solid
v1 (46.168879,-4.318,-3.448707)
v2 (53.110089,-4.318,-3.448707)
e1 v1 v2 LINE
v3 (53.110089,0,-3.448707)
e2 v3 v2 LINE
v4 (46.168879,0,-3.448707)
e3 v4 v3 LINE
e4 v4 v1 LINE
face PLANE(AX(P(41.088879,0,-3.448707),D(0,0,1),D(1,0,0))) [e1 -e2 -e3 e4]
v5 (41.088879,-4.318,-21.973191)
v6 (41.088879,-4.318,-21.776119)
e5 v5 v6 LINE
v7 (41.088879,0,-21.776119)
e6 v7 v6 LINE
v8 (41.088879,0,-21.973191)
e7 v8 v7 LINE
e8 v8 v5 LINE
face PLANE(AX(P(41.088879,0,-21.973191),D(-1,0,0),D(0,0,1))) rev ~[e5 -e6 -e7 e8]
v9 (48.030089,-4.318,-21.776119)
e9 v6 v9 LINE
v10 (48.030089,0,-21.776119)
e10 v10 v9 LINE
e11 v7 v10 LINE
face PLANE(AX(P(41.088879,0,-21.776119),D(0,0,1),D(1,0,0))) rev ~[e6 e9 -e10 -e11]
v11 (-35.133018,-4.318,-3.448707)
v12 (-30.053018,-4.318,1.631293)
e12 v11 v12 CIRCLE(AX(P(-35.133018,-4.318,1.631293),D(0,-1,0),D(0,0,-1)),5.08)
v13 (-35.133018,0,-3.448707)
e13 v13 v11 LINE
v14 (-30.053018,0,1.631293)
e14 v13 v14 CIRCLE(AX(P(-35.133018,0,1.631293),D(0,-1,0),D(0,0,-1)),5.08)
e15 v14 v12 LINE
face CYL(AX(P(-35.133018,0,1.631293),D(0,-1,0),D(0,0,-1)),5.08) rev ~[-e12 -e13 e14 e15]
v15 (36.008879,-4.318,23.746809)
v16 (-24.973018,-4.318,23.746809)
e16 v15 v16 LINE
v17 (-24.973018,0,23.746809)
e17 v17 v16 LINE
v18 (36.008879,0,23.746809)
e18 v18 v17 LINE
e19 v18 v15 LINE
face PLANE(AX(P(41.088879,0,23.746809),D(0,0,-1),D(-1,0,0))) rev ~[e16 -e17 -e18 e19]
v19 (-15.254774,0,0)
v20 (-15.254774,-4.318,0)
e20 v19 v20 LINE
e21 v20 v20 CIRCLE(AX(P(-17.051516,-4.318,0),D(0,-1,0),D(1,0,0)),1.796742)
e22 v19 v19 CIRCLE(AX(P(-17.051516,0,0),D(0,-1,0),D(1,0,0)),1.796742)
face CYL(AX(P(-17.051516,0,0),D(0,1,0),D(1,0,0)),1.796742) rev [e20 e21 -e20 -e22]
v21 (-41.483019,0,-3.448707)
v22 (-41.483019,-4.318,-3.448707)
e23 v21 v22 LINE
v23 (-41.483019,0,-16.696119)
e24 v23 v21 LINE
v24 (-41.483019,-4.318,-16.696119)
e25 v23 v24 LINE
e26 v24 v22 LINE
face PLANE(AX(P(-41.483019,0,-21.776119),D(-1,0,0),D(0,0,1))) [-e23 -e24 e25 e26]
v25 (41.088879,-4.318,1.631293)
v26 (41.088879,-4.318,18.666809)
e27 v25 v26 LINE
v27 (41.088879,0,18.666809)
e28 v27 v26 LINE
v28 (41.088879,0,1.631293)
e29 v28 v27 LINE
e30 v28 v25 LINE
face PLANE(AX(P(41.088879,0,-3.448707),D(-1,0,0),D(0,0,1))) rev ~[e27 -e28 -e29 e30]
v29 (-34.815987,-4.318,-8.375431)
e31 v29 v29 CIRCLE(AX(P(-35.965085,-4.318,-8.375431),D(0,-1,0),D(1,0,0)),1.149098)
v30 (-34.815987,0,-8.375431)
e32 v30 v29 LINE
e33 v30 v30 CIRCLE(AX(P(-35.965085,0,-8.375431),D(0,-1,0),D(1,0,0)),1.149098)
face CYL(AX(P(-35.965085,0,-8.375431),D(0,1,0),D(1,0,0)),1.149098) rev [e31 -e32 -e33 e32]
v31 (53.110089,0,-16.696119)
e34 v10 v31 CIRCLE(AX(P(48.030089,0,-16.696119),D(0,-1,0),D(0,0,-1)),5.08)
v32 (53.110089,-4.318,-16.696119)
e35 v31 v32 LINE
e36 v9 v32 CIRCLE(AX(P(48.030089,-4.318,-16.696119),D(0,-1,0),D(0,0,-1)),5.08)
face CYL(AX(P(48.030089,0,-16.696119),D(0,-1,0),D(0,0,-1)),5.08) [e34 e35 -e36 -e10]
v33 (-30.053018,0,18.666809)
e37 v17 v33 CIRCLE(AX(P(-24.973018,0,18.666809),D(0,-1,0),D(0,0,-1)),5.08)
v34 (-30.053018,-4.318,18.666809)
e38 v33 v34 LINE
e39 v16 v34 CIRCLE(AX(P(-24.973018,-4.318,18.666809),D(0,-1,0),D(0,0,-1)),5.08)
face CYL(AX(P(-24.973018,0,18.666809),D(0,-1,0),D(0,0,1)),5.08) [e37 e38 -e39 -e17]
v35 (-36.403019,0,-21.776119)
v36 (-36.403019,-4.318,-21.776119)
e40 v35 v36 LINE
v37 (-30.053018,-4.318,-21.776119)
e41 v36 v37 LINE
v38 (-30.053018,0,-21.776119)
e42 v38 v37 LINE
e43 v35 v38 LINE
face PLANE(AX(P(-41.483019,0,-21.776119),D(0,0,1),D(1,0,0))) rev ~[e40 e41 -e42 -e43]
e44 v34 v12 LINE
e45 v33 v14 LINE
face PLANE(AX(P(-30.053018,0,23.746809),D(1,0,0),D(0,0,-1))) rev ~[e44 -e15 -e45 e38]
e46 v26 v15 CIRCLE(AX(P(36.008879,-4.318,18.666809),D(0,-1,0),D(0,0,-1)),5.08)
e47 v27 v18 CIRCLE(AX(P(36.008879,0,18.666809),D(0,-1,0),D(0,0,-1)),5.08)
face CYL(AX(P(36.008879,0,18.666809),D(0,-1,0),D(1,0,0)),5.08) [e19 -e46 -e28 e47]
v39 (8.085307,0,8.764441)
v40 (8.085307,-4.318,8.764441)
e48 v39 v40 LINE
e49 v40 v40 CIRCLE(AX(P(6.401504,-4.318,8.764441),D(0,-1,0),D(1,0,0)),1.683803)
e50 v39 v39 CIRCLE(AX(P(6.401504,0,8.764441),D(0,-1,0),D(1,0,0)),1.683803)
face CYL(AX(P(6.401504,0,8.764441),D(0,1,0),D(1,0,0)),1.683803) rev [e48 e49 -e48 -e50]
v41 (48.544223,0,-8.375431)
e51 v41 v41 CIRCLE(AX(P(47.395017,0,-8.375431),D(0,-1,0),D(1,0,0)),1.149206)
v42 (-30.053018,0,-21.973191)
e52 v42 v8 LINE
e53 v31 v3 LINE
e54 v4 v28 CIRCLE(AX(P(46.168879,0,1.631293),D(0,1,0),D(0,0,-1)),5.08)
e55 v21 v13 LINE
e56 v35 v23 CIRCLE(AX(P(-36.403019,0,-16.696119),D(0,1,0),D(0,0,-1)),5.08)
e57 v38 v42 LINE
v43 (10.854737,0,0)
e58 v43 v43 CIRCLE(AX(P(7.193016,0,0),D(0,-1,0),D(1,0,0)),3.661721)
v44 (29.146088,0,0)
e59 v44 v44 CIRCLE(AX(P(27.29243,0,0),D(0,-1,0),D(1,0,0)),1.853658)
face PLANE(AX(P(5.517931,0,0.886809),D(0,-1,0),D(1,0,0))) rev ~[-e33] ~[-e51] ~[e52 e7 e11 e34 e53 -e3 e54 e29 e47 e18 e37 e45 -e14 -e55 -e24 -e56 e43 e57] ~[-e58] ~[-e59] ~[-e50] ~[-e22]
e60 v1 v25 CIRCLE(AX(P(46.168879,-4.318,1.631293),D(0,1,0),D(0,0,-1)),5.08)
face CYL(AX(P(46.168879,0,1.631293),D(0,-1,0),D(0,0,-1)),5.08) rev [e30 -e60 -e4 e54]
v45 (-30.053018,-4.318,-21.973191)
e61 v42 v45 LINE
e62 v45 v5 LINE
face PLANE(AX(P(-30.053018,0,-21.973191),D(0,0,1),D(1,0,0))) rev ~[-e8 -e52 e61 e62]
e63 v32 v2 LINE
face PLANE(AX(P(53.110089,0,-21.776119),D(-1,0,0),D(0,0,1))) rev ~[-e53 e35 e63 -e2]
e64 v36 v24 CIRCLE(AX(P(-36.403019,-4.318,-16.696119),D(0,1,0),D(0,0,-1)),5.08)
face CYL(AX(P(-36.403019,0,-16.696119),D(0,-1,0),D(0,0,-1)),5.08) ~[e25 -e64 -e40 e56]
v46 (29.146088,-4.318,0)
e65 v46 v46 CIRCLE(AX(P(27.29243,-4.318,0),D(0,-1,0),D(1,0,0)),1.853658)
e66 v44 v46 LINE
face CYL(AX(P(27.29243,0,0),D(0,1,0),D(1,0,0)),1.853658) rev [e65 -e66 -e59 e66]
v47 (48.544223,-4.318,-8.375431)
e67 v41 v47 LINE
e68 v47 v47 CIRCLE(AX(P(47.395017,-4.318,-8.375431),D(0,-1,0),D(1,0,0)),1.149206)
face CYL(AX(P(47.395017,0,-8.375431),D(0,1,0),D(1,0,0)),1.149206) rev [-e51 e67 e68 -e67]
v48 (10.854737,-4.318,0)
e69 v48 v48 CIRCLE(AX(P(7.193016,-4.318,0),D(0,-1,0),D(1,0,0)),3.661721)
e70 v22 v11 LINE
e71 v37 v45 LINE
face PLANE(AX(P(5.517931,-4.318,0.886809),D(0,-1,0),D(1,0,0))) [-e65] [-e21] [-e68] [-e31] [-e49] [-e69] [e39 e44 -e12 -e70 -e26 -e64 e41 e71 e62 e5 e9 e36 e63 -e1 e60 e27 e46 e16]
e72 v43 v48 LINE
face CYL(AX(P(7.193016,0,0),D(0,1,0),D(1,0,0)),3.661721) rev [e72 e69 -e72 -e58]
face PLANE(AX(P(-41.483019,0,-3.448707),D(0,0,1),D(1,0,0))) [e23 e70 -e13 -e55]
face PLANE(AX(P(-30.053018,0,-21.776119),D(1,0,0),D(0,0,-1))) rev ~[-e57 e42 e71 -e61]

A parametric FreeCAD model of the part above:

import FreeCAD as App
import Part
import Sketcher

V = App.Vector
Q = App.Units.Quantity


def edges_at(feature, points):
    """Names of the edges that pass closest to the given points."""
    edges = feature.Shape.Edges
    near = lambda p: min(range(len(edges)), key=lambda i: edges[i].distToShape(Part.Vertex(*p))[0])
    return sorted({f"Edge{near(p) + 1}" for p in points})


def add_polygon(sketch, points):
    """Adds a closed chain of lines whose ends are joined by coincident constraints."""
    first, n = sketch.GeometryCount, len(points)
    for a, b in zip(points, points[1:] + points[:1]):
        sketch.addGeometry(Part.LineSegment(App.Vector(*a, 0), App.Vector(*b, 0)), False)
    for i in range(n):
        sketch.addConstraint(Sketcher.Constraint("Coincident", first + i, 2, first + (i + 1) % n, 1))

doc = App.newDocument("Part")
body = doc.addObject("PartDesign::Body", "Body")

sketch1 = doc.addObject("Sketcher::SketchObject", "Sketch")
body.addObject(sketch1)
sketch1.AttachmentSupport = (doc.XZ_Plane, [""])
sketch1.MapMode = "FlatFace"
add_polygon(sketch1, [(41.088879, -21.973191), (41.088879, -21.776119), (53.110089, -21.776119), (53.110089, -3.448707), (41.088879, -3.448707), (41.088879, 23.746809), (-30.053018, 23.746809), (-30.053018, -3.448707), (-41.483019, -3.448707), (-41.483019, -21.776119), (-30.053018, -21.776119), (-30.053018, -21.973191)])
sketch1.addGeometry(Part.Circle(V(-35.965085, -8.375431, 0), V(0, 0, 1), 1.149098), False)
sketch1.addGeometry(Part.Circle(V(-17.051516, 0, 0), V(0, 0, 1), 1.796742), False)
sketch1.addGeometry(Part.Circle(V(47.395017, -8.375431, 0), V(0, 0, 1), 1.149206), False)
sketch1.addGeometry(Part.Circle(V(7.193016, 0, 0), V(0, 0, 1), 3.661721), False)
sketch1.addGeometry(Part.Circle(V(27.29243, 0, 0), V(0, 0, 1), 1.853658), False)
sketch1.addGeometry(Part.Circle(V(6.401504, 8.764441, 0), V(0, 0, 1), 1.683803), False)
sketch1.addConstraint([
    Sketcher.Constraint("Vertical", 0),
    Sketcher.Constraint("Horizontal", 1),
    Sketcher.Constraint("Vertical", 2),
    Sketcher.Constraint("Horizontal", 3),
    Sketcher.Constraint("Vertical", 4),
    Sketcher.Constraint("Horizontal", 5),
    Sketcher.Constraint("Vertical", 6),
    Sketcher.Constraint("Horizontal", 7),
    Sketcher.Constraint("Vertical", 8),
    Sketcher.Constraint("Horizontal", 9),
    Sketcher.Constraint("Vertical", 10),
    Sketcher.Constraint("Horizontal", 11),
    Sketcher.Constraint("PointOnObject", 13, 3, -1),
    Sketcher.Constraint("PointOnObject", 15, 3, -1),
    Sketcher.Constraint("PointOnObject", 16, 3, -1),
    Sketcher.Constraint("Horizontal", 12, 3, 14, 3),
    Sketcher.Constraint("Horizontal", 3, 2, 6, 2),
    Sketcher.Constraint("Horizontal", 1, 2, 8, 2),
    Sketcher.Constraint("Vertical", 0, 2, 3, 2),
    Sketcher.Constraint("Vertical", 6, 2, 9, 2),
    Sketcher.Constraint("DistanceX", 7, 2, 7, 1, Q("0.45 in")),
    Sketcher.Constraint("Diameter", 14, 2.298412),
    Sketcher.Constraint("Diameter", 12, 2.298196),
    Sketcher.Constraint("Diameter", 13, 3.593484),
    Sketcher.Constraint("Diameter", 15, 7.323442),
    Sketcher.Constraint("Diameter", 16, 3.707316),
    Sketcher.Constraint("Diameter", 17, 3.367606),
    Sketcher.Constraint("DistanceX", 1, 1, 1, 2, 12.02121),
    Sketcher.Constraint("DistanceY", 0, 1, 0, 2, 0.197072),
    Sketcher.Constraint("DistanceX", 15, 3, 14, 3, 40.202001),
    Sketcher.Constraint("DistanceX", 12, 3, 15, 3, 43.158101),
    Sketcher.Constraint("DistanceX", 5, 2, 5, 1, 71.141897),
    Sketcher.Constraint("DistanceY", 2, 1, 2, 2, 18.327412),
    Sketcher.Constraint("DistanceY", 4, 1, 4, 2, 27.195516),
    Sketcher.Constraint("DistanceY", 12, 3, -1, 1, 8.375431),
    Sketcher.Constraint("DistanceX", -1, 1, 16, 3, 27.29243),
    Sketcher.Constraint("DistanceY", -1, 1, 17, 3, 8.764441),
    Sketcher.Constraint("DistanceX", -1, 1, 0, 2, 41.088879),
    Sketcher.Constraint("DistanceY", 0, 2, -1, 1, 21.776119),
    Sketcher.Constraint("DistanceX", 12, 3, 13, 3, 18.913569),
    Sketcher.Constraint("DistanceX", 17, 3, 15, 3, 0.791512),
    Sketcher.Constraint("DistanceX", 0, 2, 14, 3, 6.306138),
])
pad1 = doc.addObject("PartDesign::Pad", "Pad")
body.addObject(pad1)
pad1.Profile = sketch1
pad1.Length = Q("0.17 in")
doc.recompute()

fillet = doc.addObject("PartDesign::Fillet", "Fillet")
body.addObject(fillet)
fillet.Base = (pad1, edges_at(pad1, [
    (-30.053, -2.159, 23.747),
    (41.089, -2.159, 23.747),
    (-30.053, -2.159, -3.449),
    (41.089, -2.159, -3.449),
    (53.11, -2.159, -21.776),
    (-41.483, -2.159, -21.776),
]))
fillet.Radius = Q("0.2 in")

doc.recompute()
